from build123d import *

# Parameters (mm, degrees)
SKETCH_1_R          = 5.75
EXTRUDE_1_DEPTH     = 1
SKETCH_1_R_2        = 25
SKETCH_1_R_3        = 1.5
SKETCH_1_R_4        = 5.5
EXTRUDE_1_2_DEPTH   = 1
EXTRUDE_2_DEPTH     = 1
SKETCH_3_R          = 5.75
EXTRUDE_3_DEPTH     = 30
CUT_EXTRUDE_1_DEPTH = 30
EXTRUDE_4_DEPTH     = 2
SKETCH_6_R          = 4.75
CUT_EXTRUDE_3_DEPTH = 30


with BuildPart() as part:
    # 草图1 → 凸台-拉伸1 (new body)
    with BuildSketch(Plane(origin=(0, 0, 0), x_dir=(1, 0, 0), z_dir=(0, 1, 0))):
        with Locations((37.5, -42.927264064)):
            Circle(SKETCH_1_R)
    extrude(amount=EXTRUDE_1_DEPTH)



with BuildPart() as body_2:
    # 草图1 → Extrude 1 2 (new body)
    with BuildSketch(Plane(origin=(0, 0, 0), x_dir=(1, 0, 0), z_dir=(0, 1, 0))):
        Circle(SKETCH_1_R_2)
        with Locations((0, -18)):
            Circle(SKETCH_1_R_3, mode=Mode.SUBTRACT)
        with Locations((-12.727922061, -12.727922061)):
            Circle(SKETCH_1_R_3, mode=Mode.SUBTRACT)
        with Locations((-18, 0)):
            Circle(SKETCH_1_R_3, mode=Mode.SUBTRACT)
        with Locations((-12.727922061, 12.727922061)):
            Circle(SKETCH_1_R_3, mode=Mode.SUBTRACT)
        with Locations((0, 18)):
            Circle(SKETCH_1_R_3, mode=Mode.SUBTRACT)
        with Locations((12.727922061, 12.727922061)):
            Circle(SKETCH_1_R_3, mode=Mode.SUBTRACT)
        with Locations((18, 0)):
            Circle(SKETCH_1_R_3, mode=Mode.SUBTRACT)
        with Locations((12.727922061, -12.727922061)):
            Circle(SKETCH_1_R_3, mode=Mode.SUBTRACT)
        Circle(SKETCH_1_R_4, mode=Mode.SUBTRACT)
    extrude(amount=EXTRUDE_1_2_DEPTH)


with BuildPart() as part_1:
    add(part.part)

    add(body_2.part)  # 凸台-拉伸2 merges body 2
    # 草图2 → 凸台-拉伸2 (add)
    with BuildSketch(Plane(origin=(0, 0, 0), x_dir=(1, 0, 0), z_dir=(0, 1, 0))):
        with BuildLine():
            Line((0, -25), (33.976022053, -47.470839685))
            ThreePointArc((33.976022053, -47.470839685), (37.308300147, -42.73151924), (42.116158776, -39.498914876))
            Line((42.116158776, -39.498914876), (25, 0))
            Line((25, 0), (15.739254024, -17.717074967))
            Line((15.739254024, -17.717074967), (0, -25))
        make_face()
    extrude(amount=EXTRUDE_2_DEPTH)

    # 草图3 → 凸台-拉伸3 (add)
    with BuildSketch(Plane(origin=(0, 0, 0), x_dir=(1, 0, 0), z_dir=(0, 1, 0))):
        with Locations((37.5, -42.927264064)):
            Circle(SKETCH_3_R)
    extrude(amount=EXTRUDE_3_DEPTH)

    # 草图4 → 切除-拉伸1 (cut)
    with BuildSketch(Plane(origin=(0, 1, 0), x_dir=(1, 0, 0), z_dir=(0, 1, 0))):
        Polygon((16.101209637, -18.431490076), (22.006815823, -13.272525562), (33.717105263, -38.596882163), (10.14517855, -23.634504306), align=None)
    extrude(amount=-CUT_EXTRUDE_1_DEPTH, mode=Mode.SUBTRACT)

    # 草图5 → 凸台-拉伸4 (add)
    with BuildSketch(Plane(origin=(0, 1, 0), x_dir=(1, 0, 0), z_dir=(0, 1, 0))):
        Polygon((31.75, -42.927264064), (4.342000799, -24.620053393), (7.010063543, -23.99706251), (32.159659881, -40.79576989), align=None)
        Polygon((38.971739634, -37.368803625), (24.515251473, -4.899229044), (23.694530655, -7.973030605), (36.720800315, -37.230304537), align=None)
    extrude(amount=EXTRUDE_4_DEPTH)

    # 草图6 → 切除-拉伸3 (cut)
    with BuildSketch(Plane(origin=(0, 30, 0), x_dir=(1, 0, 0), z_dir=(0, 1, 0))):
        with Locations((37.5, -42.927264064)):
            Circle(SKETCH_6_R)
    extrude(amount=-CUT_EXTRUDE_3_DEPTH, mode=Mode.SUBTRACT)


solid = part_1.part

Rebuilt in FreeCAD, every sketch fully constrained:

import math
import FreeCAD as App
import Part
import Sketcher

V = App.Vector
Q = App.Units.Quantity


def add_polygon(sketch, points):
    """Adds a closed chain of lines whose ends are joined by coincident constraints."""
    first, n = sketch.GeometryCount, len(points)
    for a, b in zip(points, points[1:] + points[:1]):
        sketch.addGeometry(Part.LineSegment(App.Vector(*a, 0), App.Vector(*b, 0)), False)
    for i in range(n):
        sketch.addConstraint(Sketcher.Constraint("Coincident", first + i, 2, first + (i + 1) % n, 1))

doc = App.newDocument("Part")
body = doc.addObject("PartDesign::Body", "Body")

# Sketch on XZ plane
sketch1 = body.newObject("Sketcher::SketchObject", "Sketch")
sketch1.AttachmentSupport = (doc.getObject("XZ_Plane"), [""])
sketch1.MapMode = "FlatFace"
sketch1.addGeometry(Part.Circle(V(37.5, 42.927264, 0), V(0, 0, 1), 5.75), False)
sketch1.addConstraint(Sketcher.Constraint("Diameter", 0, Q("11.5 mm")))
sketch1.addConstraint(Sketcher.Constraint("DistanceX", -1, 1, 0, 3, Q("37.5 mm")))
sketch1.addConstraint(Sketcher.Constraint("DistanceY", -1, 1, 0, 3, Q("42.927264 mm")))
pad1 = body.newObject("PartDesign::Pad", "Pad")
pad1.Profile = sketch1
pad1.Length = 1
pad1.Reversed = True
body2 = doc.addObject("PartDesign::Body", "Body001")

# Sketch on XZ plane
sketch2 = body2.newObject("Sketcher::SketchObject", "Sketch001")
sketch2.AttachmentSupport = (doc.getObject("XZ_Plane001"), [""])
sketch2.MapMode = "FlatFace"
sketch2.addGeometry(Part.Circle(V(0, 0, 0), V(0, 0, 1), 25), False)
sketch2.addGeometry(Part.Circle(V(-12.727922, 12.727922, 0), V(0, 0, 1), 1.5), False)
sketch2.addGeometry(Part.Circle(V(0, 18, 0), V(0, 0, 1), 1.5), False)
sketch2.addGeometry(Part.Circle(V(12.727922, 12.727922, 0), V(0, 0, 1), 1.5), False)
sketch2.addGeometry(Part.Circle(V(-18, 0, 0), V(0, 0, 1), 1.5), False)
sketch2.addGeometry(Part.Circle(V(-12.727922, -12.727922, 0), V(0, 0, 1), 1.5), False)
sketch2.addGeometry(Part.Circle(V(0, 0, 0), V(0, 0, 1), 5.5), False)
sketch2.addGeometry(Part.Circle(V(18, 0, 0), V(0, 0, 1), 1.5), False)
sketch2.addGeometry(Part.Circle(V(0, -18, 0), V(0, 0, 1), 1.5), False)
sketch2.addGeometry(Part.Circle(V(12.727922, -12.727922, 0), V(0, 0, 1), 1.5), False)
sketch2.addConstraint(Sketcher.Constraint("Coincident", 0, 3, -1, 1))
sketch2.addConstraint(Sketcher.Constraint("Coincident", 6, 3, -1, 1))
sketch2.addConstraint(Sketcher.Constraint("Equal", 1, 2))
sketch2.addConstraint(Sketcher.Constraint("Equal", 2, 3))
sketch2.addConstraint(Sketcher.Constraint("Equal", 3, 4))
sketch2.addConstraint(Sketcher.Constraint("Equal", 4, 5))
sketch2.addConstraint(Sketcher.Constraint("Equal", 5, 7))
sketch2.addConstraint(Sketcher.Constraint("Equal", 7, 8))
sketch2.addConstraint(Sketcher.Constraint("Equal", 8, 9))
sketch2.addConstraint(Sketcher.Constraint("Symmetric", 3, 3, 5, 3, -1, 1))
sketch2.addConstraint(Sketcher.Constraint("Symmetric", 4, 3, 7, 3, -1, 1))
sketch2.addConstraint(Sketcher.Constraint("Symmetric", 2, 3, 8, 3, -1, 1))
sketch2.addConstraint(Sketcher.Constraint("Symmetric", 1, 3, 9, 3, -1, 1))
sketch2.addConstraint(Sketcher.Constraint("Symmetric", 1, 3, 3, 3, -2))
sketch2.addConstraint(Sketcher.Constraint("PointOnObject", 2, 3, -2))
sketch2.addConstraint(Sketcher.Constraint("PointOnObject", 4, 3, -1))
sketch2.addConstraint(Sketcher.Constraint("Diameter", 0, Q("50 mm")))
sketch2.addConstraint(Sketcher.Constraint("Diameter", 1, Q("3 mm")))
sketch2.addConstraint(Sketcher.Constraint("Diameter", 6, Q("11 mm")))
sketch2.addConstraint(Sketcher.Constraint("DistanceY", -1, 1, 2, 3, Q("18 mm")))
sketch2.addConstraint(Sketcher.Constraint("DistanceX", 4, 3, -1, 1, Q("18 mm")))
sketch2.addConstraint(Sketcher.Constraint("DistanceX", 1, 3, -1, 1, Q("12.727922 mm")))
sketch2.addConstraint(Sketcher.Constraint("DistanceY", -1, 1, 1, 3, Q("12.727922 mm")))
pad2 = body2.newObject("PartDesign::Pad", "Pad001")
pad2.Profile = sketch2
pad2.Length = 1
pad2.Reversed = True
body.AllowCompound = True
doc.recompute()

boolean = body.newObject("PartDesign::Boolean", "Boolean")
boolean.Type = "Fuse"
boolean.addObjects([body2])

# Sketch on XZ plane
sketch3 = body.newObject("Sketcher::SketchObject", "Sketch002")
sketch3.AttachmentSupport = (doc.getObject("XZ_Plane"), [""])
sketch3.MapMode = "FlatFace"
sketch3.addGeometry(Part.LineSegment(V(0, 25, 0), V(33.976022, 47.47084, 0)), False)
sketch3.addGeometry(Part.ArcOfCircle(Part.Circle(V(48.444413, 54.10261, 0), V(0, 0, 1), 15.915863), math.radians(-155.375047), math.radians(-113.428647)), False)
sketch3.addGeometry(Part.LineSegment(V(42.116159, 39.498915, 0), V(25, 0, 0)), False)
sketch3.addGeometry(Part.LineSegment(V(25, 0, 0), V(15.739254, 17.717075, 0)), False)
sketch3.addGeometry(Part.LineSegment(V(15.739254, 17.717075, 0), V(0, 25, 0)), False)
sketch3.addConstraint(Sketcher.Constraint("Coincident", 0, 2, 1, 1))
sketch3.addConstraint(Sketcher.Constraint("Coincident", 1, 2, 2, 1))
sketch3.addConstraint(Sketcher.Constraint("Coincident", 2, 2, 3, 1))
sketch3.addConstraint(Sketcher.Constraint("Coincident", 3, 2, 4, 1))
sketch3.addConstraint(Sketcher.Constraint("Coincident", 4, 2, 0, 1))
sketch3.addConstraint(Sketcher.Constraint("PointOnObject", 2, 2, -1))
sketch3.addConstraint(Sketcher.Constraint("PointOnObject", 4, 2, -2))
sketch3.addConstraint(Sketcher.Constraint("DistanceX", -1, 1, 2, 2, Q("25 mm")))
sketch3.addConstraint(Sketcher.Constraint("DistanceY", -1, 1, 4, 2, Q("25 mm")))
sketch3.addConstraint(Sketcher.Constraint("Radius", 1, Q("15.915863 mm")))
sketch3.addConstraint(Sketcher.Constraint("Distance", 4, Q("17.342581 mm")))
sketch3.addConstraint(Sketcher.Constraint("DistanceY", -1, 1, 1, 3, Q("54.10261 mm")))
sketch3.addConstraint(Sketcher.Constraint("DistanceY", -1, 1, 0, 2, Q("47.47084 mm")))
sketch3.addConstraint(Sketcher.Constraint("DistanceX", -1, 1, 1, 2, Q("42.116159 mm")))
sketch3.addConstraint(Sketcher.Constraint("DistanceY", 3, 2, 1, 2, Q("21.78184 mm")))
sketch3.addConstraint(Sketcher.Constraint("DistanceX", 3, 2, 0, 2, Q("18.236768 mm")))
pad3 = body.newObject("PartDesign::Pad", "Pad002")
pad3.Profile = sketch3
pad3.Length = 1
pad3.Reversed = True

# Sketch on XZ plane
sketch4 = body.newObject("Sketcher::SketchObject", "Sketch003")
sketch4.AttachmentSupport = (doc.getObject("XZ_Plane"), [""])
sketch4.MapMode = "FlatFace"
sketch4.addGeometry(Part.Circle(V(37.5, 42.927264, 0), V(0, 0, 1), 5.75), False)
sketch4.addConstraint(Sketcher.Constraint("Diameter", 0, Q("11.5 mm")))
sketch4.addConstraint(Sketcher.Constraint("DistanceX", -1, 1, 0, 3, Q("37.5 mm")))
sketch4.addConstraint(Sketcher.Constraint("DistanceY", -1, 1, 0, 3, Q("42.927264 mm")))
pad4 = body.newObject("PartDesign::Pad", "Pad003")
pad4.Profile = sketch4
pad4.Length = 30
pad4.Reversed = True

# Sketch on XZ plane
sketch5 = body.newObject("Sketcher::SketchObject", "Sketch004")
sketch5.AttachmentSupport = (doc.getObject("XZ_Plane"), [""])
sketch5.MapMode = "FlatFace"
sketch5.AttachmentOffset = App.Placement(V(0, 0, -1), App.Rotation())
add_polygon(sketch5, [(22.006816, 13.272526), (16.10121, 18.43149), (10.145179, 23.634504), (33.717105, 38.596882)])  # lines 0-3
sketch5.addConstraint(Sketcher.Constraint("Parallel", 0, 1))
sketch5.addConstraint(Sketcher.Constraint("Distance", 1, Q("7.908582 mm")))
sketch5.addConstraint(Sketcher.Constraint("Distance", 2, Q("27.919679 mm")))
sketch5.addConstraint(Sketcher.Constraint("DistanceX", -1, 1, 0, 2, Q("16.10121 mm")))
sketch5.addConstraint(Sketcher.Constraint("DistanceY", -1, 1, 0, 2, Q("18.43149 mm")))
sketch5.addConstraint(Sketcher.Constraint("DistanceX", -1, 1, 1, 2, Q("10.145179 mm")))
sketch5.addConstraint(Sketcher.Constraint("DistanceY", 3, 2, 1, 2, Q("10.361979 mm")))
sketch5.addConstraint(Sketcher.Constraint("DistanceX", 3, 2, 2, 2, Q("11.710289 mm")))
pocket1 = body.newObject("PartDesign::Pocket", "Pocket")
pocket1.Profile = sketch5
pocket1.Length = 30
pocket1.Reversed = True

# Sketch on XZ plane
sketch6 = body.newObject("Sketcher::SketchObject", "Sketch005")
sketch6.AttachmentSupport = (doc.getObject("XZ_Plane"), [""])
sketch6.MapMode = "FlatFace"
sketch6.AttachmentOffset = App.Placement(V(0, 0, -1), App.Rotation())
add_polygon(sketch6, [(4.342001, 24.620053), (31.75, 42.927264), (32.15966, 40.79577), (7.010064, 23.997063)])  # lines 0-3
add_polygon(sketch6, [(38.97174, 37.368804), (24.515251, 4.899229), (23.694531, 7.973031), (36.7208, 37.230305)])  # lines 4-7
sketch6.addConstraint(Sketcher.Constraint("Parallel", 0, 2))
sketch6.addConstraint(Sketcher.Constraint("Parallel", 4, 6))
sketch6.addConstraint(Sketcher.Constraint("DistanceX", -1, 1, 0, 2, Q("31.75 mm")))
sketch6.addConstraint(Sketcher.Constraint("DistanceX", -1, 1, 3, 2, Q("4.342001 mm")))
sketch6.addConstraint(Sketcher.Constraint("DistanceX", -1, 1, 6, 2, Q("36.7208 mm")))
sketch6.addConstraint(Sketcher.Constraint("DistanceY", 2, 2, 0, 2, Q("18.930202 mm")))
sketch6.addConstraint(Sketcher.Constraint("DistanceY", 4, 2, 5, 2, Q("3.073802 mm")))
sketch6.addConstraint(Sketcher.Constraint("DistanceY", 6, 2, 7, 2, Q("0.138499 mm")))
sketch6.addConstraint(Sketcher.Constraint("Distance", 0, Q("32.95986 mm")))
sketch6.addConstraint(Sketcher.Constraint("Distance", 3, Q("2.739831 mm")))
sketch6.addConstraint(Sketcher.Constraint("Distance", 6, Q("32.026111 mm")))
sketch6.addConstraint(Sketcher.Constraint("DistanceX", -1, 1, 1, 2, Q("32.15966 mm")))
sketch6.addConstraint(Sketcher.Constraint("DistanceY", -1, 1, 1, 2, Q("40.79577 mm")))
sketch6.addConstraint(Sketcher.Constraint("DistanceX", -1, 1, 4, 2, Q("24.515251 mm")))
sketch6.addConstraint(Sketcher.Constraint("DistanceY", -1, 1, 4, 2, Q("4.899229 mm")))
sketch6.addConstraint(Sketcher.Constraint("DistanceX", -1, 1, 5, 2, Q("23.694531 mm")))
pad5 = body.newObject("PartDesign::Pad", "Pad004")
pad5.Profile = sketch6
pad5.Length = 2
pad5.Reversed = True

# Sketch on XZ plane
sketch7 = body.newObject("Sketcher::SketchObject", "Sketch006")
sketch7.AttachmentSupport = (doc.getObject("XZ_Plane"), [""])
sketch7.MapMode = "FlatFace"
sketch7.AttachmentOffset = App.Placement(V(0, 0, -30), App.Rotation())
sketch7.addGeometry(Part.Circle(V(37.5, 42.927264, 0), V(0, 0, 1), 4.75), False)
sketch7.addConstraint(Sketcher.Constraint("Diameter", 0, Q("9.5 mm")))
sketch7.addConstraint(Sketcher.Constraint("DistanceX", -1, 1, 0, 3, Q("37.5 mm")))
sketch7.addConstraint(Sketcher.Constraint("DistanceY", -1, 1, 0, 3, Q("42.927264 mm")))
pocket2 = body.newObject("PartDesign::Pocket", "Pocket001")
pocket2.Profile = sketch7
pocket2.Length = 30
pocket2.Reversed = True

doc.recompute()
